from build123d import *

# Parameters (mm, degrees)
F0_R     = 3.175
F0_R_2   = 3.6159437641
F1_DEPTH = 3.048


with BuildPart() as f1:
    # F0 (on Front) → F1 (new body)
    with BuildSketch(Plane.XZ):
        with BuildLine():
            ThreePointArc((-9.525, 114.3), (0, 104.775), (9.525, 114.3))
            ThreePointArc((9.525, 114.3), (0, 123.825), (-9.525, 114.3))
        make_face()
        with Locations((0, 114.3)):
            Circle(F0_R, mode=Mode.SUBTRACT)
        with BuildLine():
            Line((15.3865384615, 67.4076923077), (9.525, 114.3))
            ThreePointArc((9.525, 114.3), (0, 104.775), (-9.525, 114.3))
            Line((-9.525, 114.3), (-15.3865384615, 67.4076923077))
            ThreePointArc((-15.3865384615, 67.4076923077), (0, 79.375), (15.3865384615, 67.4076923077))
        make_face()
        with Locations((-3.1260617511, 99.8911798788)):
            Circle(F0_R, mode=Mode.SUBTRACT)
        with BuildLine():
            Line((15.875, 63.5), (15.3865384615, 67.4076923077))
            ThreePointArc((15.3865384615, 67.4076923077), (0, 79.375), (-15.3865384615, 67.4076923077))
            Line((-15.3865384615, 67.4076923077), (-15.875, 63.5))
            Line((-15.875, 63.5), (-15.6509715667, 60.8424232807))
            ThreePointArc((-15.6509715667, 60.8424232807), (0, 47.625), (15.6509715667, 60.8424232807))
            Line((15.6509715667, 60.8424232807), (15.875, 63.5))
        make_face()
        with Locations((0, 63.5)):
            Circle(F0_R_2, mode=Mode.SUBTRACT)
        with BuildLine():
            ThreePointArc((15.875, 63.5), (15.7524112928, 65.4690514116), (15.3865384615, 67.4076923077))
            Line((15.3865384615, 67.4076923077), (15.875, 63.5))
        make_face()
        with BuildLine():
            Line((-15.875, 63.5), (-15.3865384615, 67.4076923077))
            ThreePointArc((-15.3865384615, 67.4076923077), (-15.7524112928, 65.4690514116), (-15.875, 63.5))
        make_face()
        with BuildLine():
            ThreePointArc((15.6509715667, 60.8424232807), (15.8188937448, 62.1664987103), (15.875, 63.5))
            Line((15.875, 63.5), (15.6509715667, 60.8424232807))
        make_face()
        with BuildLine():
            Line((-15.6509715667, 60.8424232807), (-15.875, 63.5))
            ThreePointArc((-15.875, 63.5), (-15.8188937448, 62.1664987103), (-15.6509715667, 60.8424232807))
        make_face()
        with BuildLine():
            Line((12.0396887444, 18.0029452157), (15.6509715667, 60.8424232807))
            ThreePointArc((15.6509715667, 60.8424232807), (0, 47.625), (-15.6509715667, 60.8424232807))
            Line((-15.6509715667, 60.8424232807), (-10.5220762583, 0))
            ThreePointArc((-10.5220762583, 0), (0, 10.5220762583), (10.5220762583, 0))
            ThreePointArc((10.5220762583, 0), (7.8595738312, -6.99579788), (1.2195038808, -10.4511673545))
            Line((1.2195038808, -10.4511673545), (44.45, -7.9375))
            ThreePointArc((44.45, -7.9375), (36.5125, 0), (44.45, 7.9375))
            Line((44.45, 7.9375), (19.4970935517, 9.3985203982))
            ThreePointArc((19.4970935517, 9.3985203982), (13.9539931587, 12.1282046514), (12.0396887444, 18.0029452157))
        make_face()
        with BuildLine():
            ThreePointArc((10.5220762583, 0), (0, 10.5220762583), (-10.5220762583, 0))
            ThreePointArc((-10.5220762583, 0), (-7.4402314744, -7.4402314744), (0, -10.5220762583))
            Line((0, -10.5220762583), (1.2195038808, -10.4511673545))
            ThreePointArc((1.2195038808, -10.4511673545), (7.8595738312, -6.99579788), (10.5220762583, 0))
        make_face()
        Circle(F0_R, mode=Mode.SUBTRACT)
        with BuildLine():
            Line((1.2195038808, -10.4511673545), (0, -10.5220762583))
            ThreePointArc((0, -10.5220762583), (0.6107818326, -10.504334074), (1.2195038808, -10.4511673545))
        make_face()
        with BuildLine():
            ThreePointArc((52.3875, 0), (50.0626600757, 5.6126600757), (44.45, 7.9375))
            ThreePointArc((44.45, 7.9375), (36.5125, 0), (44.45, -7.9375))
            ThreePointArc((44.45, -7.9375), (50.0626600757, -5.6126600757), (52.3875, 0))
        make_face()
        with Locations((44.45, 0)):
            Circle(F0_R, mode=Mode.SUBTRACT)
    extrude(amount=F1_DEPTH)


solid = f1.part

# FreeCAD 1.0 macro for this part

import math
import FreeCAD as App
import Part
import Sketcher
from FreeCAD import Vector
Q = App.Units.Quantity

doc = App.newDocument("Part")
body = doc.addObject("PartDesign::Body", "Body")

# Sketch on XZ plane
sketch1 = body.newObject("Sketcher::SketchObject", "Sketch")
sketch1.AttachmentSupport = (doc.getObject("XZ_Plane"), [""])
sketch1.MapMode = "FlatFace"
sketch1.addGeometry([
    Part.ArcOfCircle(Part.Circle(Vector(0, 114.3, 0), Vector(0, 0, 1), 9.525), math.radians(0), math.radians(180)),  # 0
    Part.LineSegment(Vector(-9.525, 114.3, 0), Vector(-15.386538, 67.407692, 0)),  # 1
    Part.ArcOfCircle(Part.Circle(Vector(0, 63.5, 0), Vector(0, 0, 1), 15.875), math.radians(165.749967), math.radians(180)),  # 2
    Part.ArcOfCircle(Part.Circle(Vector(0, 63.5, 0), Vector(0, 0, 1), 15.875), math.radians(-180), math.radians(-170.362944)),  # 3
    Part.LineSegment(Vector(-15.650972, 60.842423, 0), Vector(-10.522076, 0, 0)),  # 4
    Part.ArcOfCircle(Part.Circle(Vector(0, 0, 0), Vector(0, 0, 1), 10.522076), math.radians(180), math.radians(270)),  # 5
    Part.ArcOfCircle(Part.Circle(Vector(0, 0, 0), Vector(0, 0, 1), 10.522076), math.radians(-90), math.radians(-83.344488)),  # 6
    Part.LineSegment(Vector(1.219504, -10.451167, 0), Vector(44.45, -7.9375, 0)),  # 7
    Part.ArcOfCircle(Part.Circle(Vector(44.45, 0, 0), Vector(0, 0, 1), 7.9375), math.radians(-90), math.radians(0)),  # 8
    Part.ArcOfCircle(Part.Circle(Vector(44.45, 0, 0), Vector(0, 0, 1), 7.9375), math.radians(0), math.radians(90)),  # 9
    Part.LineSegment(Vector(44.45, 7.9375, 0), Vector(19.497094, 9.39852, 0)),  # 10
    Part.ArcOfCircle(Part.Circle(Vector(19.961791, 17.335128, 0), Vector(0, 0, 1), 7.9502), math.radians(175.181472), math.radians(266.649094)),  # 11
    Part.LineSegment(Vector(12.039689, 18.002945, 0), Vector(15.650972, 60.842423, 0)),  # 12
    Part.ArcOfCircle(Part.Circle(Vector(0, 63.5, 0), Vector(0, 0, 1), 15.875), math.radians(-9.637056), math.radians(0)),  # 13
    Part.ArcOfCircle(Part.Circle(Vector(0, 63.5, 0), Vector(0, 0, 1), 15.875), math.radians(0), math.radians(14.250033)),  # 14
    Part.LineSegment(Vector(15.386538, 67.407692, 0), Vector(9.525, 114.3, 0)),  # 15
    Part.Circle(Vector(0, 0, 0), Vector(0, 0, 1), 3.175),  # 16
    Part.Circle(Vector(44.45, 0, 0), Vector(0, 0, 1), 3.175),  # 17
    Part.Circle(Vector(0, 63.5, 0), Vector(0, 0, 1), 3.615944),  # 18
    Part.Circle(Vector(-3.126062, 99.89118, 0), Vector(0, 0, 1), 3.175),  # 19
    Part.Circle(Vector(0, 114.3, 0), Vector(0, 0, 1), 3.175),  # 20
], False)
sketch1.addConstraint([
    Sketcher.Constraint("Coincident", 0, 2, 1, 1),
    Sketcher.Constraint("Coincident", 1, 2, 2, 1),
    Sketcher.Constraint("Tangent", 2, 2, 3, 1),
    Sketcher.Constraint("Coincident", 3, 2, 4, 1),
    Sketcher.Constraint("Coincident", 4, 2, 5, 1),
    Sketcher.Constraint("Tangent", 5, 2, 6, 1),
    Sketcher.Constraint("Coincident", 6, 2, 7, 1),
    Sketcher.Constraint("Coincident", 7, 2, 8, 1),
    Sketcher.Constraint("Tangent", 8, 2, 9, 1),
    Sketcher.Constraint("Coincident", 9, 2, 10, 1),
    Sketcher.Constraint("Tangent", 10, 2, 11, 2),
    Sketcher.Constraint("Tangent", 11, 1, 12, 1),
    Sketcher.Constraint("Coincident", 12, 2, 13, 1),
    Sketcher.Constraint("Tangent", 13, 2, 14, 1),
    Sketcher.Constraint("Coincident", 14, 2, 15, 1),
    Sketcher.Constraint("Coincident", 15, 2, 0, 1),
    Sketcher.Constraint("Coincident", 5, 3, -1, 1),
    Sketcher.Constraint("Coincident", 16, 3, -1, 1),
    Sketcher.Constraint("Coincident", 13, 3, 2, 3),
    Sketcher.Constraint("Coincident", 17, 3, 8, 3),
    Sketcher.Constraint("Coincident", 18, 3, 2, 3),
    Sketcher.Constraint("Coincident", 20, 3, 0, 3),
    Sketcher.Constraint("Equal", 2, 3),
    Sketcher.Constraint("Equal", 5, 6),
    Sketcher.Constraint("Equal", 8, 9),
    Sketcher.Constraint("Equal", 3, 13),
    Sketcher.Constraint("Equal", 13, 14),
    Sketcher.Constraint("Equal", 16, 17),
    Sketcher.Constraint("Equal", 17, 19),
    Sketcher.Constraint("Equal", 19, 20),
    Sketcher.Constraint("Symmetric", 3, 2, 12, 2, -2),
    Sketcher.Constraint("Symmetric", 0, 2, 15, 2, -2),
    Sketcher.Constraint("Symmetric", 7, 2, 9, 2, -1),
    Sketcher.Constraint("PointOnObject", 4, 2, -1),
    Sketcher.Constraint("PointOnObject", 5, 2, -2),
    Sketcher.Constraint("PointOnObject", 8, 2, -1),
    Sketcher.Constraint("Horizontal", 20, 3, 0, 2),
    Sketcher.Constraint("Horizontal", 18, 3, 2, 2),
    Sketcher.Constraint("Horizontal", 2, 2, 13, 2),
    Sketcher.Constraint("Horizontal", 1, 2, 14, 2),
    Sketcher.Constraint("Vertical", 17, 3, 7, 2),
    Sketcher.Constraint("Diameter", 16, Q("0.25 in")),
    Sketcher.Constraint("Radius", 0, Q("0.375 in")),
    Sketcher.Constraint("Radius", 2, Q("0.625 in")),
    Sketcher.Constraint("Radius", 8, Q("0.3125 in")),
    Sketcher.Constraint("Radius", 11, Q("0.313 in")),
    Sketcher.Constraint("DistanceY", 2, 3, 0, 3, Q("2 in")),
    Sketcher.Constraint("DistanceY", -1, 1, 0, 3, Q("4.5 in")),
    Sketcher.Constraint("DistanceX", -1, 1, 8, 3, Q("1.75 in")),
    Sketcher.Constraint("Diameter", 18, 7.231888),
    Sketcher.Constraint("Radius", 5, 10.522076),
    Sketcher.Constraint("DistanceX", 11, 1, 11, 3, 7.922102),
    Sketcher.Constraint("Distance", 4, 61.058218),
    Sketcher.Constraint("Distance", 12, 42.991421),
    Sketcher.Constraint("DistanceX", 19, 3, -1, 1, 3.126062),
    Sketcher.Constraint("DistanceY", -1, 1, 19, 3, 99.89118),
    Sketcher.Constraint("DistanceX", 1, 2, -1, 1, 15.386538),
    Sketcher.Constraint("DistanceY", 5, 2, 6, 2, 0.070909),
])
pad1 = body.newObject("PartDesign::Pad", "Pad")
pad1.Profile = sketch1
pad1.Length = Q("0.12 in")

doc.recompute()
